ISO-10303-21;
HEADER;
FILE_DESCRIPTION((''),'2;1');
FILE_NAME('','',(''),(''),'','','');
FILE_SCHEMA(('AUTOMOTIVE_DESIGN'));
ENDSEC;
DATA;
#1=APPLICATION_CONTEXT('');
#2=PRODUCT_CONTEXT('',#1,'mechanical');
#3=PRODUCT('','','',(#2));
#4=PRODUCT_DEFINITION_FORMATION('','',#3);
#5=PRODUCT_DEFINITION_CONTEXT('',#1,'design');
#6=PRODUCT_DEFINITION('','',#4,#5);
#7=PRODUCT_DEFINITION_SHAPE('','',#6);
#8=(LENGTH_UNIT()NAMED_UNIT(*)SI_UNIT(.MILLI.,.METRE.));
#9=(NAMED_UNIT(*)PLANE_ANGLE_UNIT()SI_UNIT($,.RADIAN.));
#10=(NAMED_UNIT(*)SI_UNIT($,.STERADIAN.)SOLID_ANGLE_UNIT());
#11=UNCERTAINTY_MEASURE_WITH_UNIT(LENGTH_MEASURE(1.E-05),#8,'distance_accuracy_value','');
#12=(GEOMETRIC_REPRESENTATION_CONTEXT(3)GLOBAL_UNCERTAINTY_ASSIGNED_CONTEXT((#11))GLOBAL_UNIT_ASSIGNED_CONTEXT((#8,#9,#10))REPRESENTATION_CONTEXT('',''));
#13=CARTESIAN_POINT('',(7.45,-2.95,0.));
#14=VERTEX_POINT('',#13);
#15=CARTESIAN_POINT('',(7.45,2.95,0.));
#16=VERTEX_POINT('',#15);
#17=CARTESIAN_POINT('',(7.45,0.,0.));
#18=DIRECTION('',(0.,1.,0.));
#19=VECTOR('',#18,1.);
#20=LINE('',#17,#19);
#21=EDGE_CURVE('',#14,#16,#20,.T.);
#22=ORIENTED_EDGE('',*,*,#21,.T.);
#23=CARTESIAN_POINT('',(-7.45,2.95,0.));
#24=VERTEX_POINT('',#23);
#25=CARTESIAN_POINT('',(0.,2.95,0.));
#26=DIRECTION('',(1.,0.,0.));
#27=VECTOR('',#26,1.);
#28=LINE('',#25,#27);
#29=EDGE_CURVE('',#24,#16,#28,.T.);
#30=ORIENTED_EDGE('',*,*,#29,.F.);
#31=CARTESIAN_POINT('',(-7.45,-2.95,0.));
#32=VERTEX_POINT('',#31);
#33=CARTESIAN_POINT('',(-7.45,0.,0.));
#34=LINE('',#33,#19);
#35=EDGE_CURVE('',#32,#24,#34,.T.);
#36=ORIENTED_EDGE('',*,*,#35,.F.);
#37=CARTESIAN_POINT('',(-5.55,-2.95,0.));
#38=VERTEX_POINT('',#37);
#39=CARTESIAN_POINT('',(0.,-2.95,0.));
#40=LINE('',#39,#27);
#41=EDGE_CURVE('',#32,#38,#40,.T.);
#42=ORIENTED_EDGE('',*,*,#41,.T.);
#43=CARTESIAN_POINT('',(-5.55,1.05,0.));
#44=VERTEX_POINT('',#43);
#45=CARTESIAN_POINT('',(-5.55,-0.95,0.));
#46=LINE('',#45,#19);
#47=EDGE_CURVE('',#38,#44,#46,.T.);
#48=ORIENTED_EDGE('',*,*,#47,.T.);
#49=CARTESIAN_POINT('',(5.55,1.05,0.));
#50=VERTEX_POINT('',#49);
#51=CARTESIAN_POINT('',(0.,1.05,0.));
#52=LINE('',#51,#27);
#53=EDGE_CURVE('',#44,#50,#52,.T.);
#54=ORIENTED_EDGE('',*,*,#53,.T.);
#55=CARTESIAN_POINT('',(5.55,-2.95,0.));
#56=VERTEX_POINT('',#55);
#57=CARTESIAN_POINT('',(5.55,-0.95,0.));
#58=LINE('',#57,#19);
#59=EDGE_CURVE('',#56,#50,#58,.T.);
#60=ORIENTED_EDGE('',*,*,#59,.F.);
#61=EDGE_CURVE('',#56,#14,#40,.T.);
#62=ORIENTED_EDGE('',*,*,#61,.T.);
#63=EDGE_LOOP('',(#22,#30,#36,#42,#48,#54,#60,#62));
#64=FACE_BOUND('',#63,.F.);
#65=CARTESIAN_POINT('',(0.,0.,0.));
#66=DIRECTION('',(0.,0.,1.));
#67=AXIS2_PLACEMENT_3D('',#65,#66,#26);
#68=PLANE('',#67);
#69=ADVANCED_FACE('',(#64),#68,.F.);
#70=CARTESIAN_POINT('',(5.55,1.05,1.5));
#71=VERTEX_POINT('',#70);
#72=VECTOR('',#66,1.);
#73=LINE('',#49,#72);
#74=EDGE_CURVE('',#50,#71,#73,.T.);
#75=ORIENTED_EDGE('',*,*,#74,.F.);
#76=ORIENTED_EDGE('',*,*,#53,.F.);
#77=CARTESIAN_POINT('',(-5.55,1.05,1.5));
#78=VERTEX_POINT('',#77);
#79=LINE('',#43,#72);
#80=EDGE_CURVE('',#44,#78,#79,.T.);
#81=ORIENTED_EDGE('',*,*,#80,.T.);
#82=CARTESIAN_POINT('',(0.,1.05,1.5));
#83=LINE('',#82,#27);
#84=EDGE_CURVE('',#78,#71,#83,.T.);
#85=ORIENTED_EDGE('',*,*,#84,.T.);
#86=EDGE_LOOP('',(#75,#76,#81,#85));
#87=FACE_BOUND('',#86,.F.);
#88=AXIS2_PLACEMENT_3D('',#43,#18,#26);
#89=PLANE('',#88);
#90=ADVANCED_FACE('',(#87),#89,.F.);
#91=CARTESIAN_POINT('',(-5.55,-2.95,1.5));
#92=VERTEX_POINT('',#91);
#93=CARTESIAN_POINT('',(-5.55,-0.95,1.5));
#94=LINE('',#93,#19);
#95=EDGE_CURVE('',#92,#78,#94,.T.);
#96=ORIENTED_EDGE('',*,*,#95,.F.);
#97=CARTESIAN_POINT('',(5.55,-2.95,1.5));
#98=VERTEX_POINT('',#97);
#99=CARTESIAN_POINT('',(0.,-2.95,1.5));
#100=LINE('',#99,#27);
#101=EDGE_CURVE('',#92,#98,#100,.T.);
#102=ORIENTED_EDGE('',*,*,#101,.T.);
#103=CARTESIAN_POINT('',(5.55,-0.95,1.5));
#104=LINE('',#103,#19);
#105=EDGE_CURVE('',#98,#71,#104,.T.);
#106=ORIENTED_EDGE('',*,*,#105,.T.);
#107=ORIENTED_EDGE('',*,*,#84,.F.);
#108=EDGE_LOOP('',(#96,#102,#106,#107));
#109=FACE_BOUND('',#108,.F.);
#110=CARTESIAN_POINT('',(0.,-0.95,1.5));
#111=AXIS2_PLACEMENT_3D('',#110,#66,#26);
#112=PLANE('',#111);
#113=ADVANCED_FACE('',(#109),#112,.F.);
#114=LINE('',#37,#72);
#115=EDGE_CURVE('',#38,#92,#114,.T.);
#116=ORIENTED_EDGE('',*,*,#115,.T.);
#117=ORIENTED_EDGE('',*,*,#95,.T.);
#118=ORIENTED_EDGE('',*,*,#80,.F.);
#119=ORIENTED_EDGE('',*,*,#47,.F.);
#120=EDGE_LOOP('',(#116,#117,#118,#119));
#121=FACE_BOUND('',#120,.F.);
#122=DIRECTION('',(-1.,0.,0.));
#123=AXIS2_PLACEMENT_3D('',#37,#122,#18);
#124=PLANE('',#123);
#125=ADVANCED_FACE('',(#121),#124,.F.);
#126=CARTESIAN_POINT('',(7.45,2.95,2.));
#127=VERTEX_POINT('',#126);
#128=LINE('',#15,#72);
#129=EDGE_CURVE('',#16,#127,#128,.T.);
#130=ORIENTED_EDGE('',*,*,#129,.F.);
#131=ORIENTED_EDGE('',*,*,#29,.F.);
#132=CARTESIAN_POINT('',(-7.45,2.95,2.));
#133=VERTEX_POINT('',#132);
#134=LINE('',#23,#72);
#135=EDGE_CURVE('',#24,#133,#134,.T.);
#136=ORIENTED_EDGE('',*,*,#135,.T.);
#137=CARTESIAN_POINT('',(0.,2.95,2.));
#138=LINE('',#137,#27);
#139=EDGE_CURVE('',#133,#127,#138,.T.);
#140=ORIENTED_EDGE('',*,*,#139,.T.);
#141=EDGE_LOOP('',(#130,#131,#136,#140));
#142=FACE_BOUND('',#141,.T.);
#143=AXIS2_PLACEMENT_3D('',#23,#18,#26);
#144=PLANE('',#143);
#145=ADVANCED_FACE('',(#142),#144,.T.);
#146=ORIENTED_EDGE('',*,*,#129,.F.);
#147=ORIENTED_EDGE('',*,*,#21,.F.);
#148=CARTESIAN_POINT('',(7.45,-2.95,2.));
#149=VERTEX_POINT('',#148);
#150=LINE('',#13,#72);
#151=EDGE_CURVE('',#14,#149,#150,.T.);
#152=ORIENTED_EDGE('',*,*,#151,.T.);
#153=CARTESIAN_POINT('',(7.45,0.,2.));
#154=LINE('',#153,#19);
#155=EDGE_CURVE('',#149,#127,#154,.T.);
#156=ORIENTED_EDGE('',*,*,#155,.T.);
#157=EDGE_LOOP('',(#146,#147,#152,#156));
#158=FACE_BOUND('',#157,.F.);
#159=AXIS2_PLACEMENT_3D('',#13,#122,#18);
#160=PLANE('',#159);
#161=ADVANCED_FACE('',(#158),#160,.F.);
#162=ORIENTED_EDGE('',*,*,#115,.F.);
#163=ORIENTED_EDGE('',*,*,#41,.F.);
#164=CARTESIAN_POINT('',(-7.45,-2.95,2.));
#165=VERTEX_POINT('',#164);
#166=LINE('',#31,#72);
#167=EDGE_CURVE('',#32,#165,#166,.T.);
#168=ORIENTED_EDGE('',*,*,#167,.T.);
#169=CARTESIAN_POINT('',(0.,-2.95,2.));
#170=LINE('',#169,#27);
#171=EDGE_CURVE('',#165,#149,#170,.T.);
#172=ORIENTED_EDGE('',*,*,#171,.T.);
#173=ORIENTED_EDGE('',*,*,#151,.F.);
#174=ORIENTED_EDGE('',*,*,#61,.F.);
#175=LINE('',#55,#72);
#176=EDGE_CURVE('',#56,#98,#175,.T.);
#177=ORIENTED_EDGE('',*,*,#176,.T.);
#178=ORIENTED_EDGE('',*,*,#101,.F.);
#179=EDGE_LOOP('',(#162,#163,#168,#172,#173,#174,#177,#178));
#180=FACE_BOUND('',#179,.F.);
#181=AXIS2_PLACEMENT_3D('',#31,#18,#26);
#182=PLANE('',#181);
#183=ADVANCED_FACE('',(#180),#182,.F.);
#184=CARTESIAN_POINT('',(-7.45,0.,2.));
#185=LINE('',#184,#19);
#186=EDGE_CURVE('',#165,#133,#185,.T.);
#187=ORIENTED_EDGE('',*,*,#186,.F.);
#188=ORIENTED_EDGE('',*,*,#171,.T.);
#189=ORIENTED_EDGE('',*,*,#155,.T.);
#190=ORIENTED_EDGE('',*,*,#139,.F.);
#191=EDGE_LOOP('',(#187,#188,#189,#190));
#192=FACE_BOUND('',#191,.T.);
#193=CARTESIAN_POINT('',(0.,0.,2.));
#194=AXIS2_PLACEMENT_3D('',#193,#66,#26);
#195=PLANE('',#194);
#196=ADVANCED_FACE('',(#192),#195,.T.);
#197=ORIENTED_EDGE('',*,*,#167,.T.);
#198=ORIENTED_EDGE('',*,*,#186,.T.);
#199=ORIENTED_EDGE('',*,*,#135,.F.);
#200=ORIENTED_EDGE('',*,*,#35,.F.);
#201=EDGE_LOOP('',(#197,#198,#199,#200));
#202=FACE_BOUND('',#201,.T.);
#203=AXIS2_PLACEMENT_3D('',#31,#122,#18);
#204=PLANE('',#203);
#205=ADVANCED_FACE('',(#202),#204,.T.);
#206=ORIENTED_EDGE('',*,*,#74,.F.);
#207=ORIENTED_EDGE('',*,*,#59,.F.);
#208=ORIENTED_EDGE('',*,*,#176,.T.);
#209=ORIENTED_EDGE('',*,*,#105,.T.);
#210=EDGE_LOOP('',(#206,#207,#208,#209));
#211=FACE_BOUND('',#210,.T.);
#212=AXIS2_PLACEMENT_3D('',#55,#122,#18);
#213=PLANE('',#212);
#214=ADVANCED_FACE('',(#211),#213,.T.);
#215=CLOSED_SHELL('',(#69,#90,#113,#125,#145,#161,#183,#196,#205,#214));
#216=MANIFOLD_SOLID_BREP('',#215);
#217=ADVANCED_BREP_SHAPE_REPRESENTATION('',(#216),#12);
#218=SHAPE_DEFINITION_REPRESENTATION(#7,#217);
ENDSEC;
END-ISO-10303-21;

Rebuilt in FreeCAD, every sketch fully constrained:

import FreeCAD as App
import Part
import Sketcher

doc = App.newDocument("Part")
body = doc.addObject("PartDesign::Body", "Body")

# Sketch on XY plane
sketch1 = doc.addObject("Sketcher::SketchObject", "Sketch")
body.addObject(sketch1)
sketch1.AttachmentSupport = (doc.XY_Plane, [""])
sketch1.MapMode = "FlatFace"
sketch1.addGeometry([
    Part.LineSegment(App.Vector(-5.5, 1.1, 0), App.Vector(-5.5, -3, 0)),
    Part.LineSegment(App.Vector(-5.5, -3, 0), App.Vector(5.5, -3, 0)),
    Part.LineSegment(App.Vector(5.5, -3, 0), App.Vector(5.5, 1.1, 0)),
    Part.LineSegment(App.Vector(5.5, 1.1, 0), App.Vector(-5.5, 1.1, 0)),
], False)
sketch1.addConstraint([
    Sketcher.Constraint("Coincident", 0, 2, 1, 1),
    Sketcher.Constraint("Coincident", 1, 2, 2, 1),
    Sketcher.Constraint("Coincident", 2, 2, 3, 1),
    Sketcher.Constraint("Coincident", 3, 2, 0, 1),
    Sketcher.Constraint("Vertical", 0),
    Sketcher.Constraint("Horizontal", 1),
    Sketcher.Constraint("Vertical", 2),
    Sketcher.Constraint("Horizontal", 3),
    Sketcher.Constraint("DistanceY", 0, 2, 0, 1, 4.0),
    Sketcher.Constraint("DistanceX", 1, 1, 1, 2, 11.1),
    Sketcher.Constraint("DistanceX", 0, 2, -1, 1, 5.55),
    Sketcher.Constraint("DistanceY", 0, 2, -1, 1, 2.95),
])
pad1 = doc.addObject("PartDesign::Pad", "Pad")
body.addObject(pad1)
pad1.Profile = sketch1
pad1.Length = 1.5
body2 = doc.addObject("PartDesign::Body", "Body001")

# Sketch on XY plane
sketch2 = doc.addObject("Sketcher::SketchObject", "Sketch001")
body2.addObject(sketch2)
sketch2.AttachmentSupport = (doc.getObject("XY_Plane001"), [""])
sketch2.MapMode = "FlatFace"
sketch2.addGeometry([
    Part.LineSegment(App.Vector(-7, 3, 0), App.Vector(-7, -3, 0)),
    Part.LineSegment(App.Vector(-7, -3, 0), App.Vector(7, -3, 0)),
    Part.LineSegment(App.Vector(7, -3, 0), App.Vector(7, 3, 0)),
    Part.LineSegment(App.Vector(7, 3, 0), App.Vector(-7, 3, 0)),
], False)
sketch2.addConstraint([
    Sketcher.Constraint("Coincident", 0, 2, 1, 1),
    Sketcher.Constraint("Coincident", 1, 2, 2, 1),
    Sketcher.Constraint("Coincident", 2, 2, 3, 1),
    Sketcher.Constraint("Coincident", 3, 2, 0, 1),
    Sketcher.Constraint("Vertical", 0),
    Sketcher.Constraint("Horizontal", 1),
    Sketcher.Constraint("Vertical", 2),
    Sketcher.Constraint("Horizontal", 3),
    Sketcher.Constraint("Symmetric", 0, 2, 2, 2, -1, 1),
    Sketcher.Constraint("DistanceX", 1, 1, 1, 2, 14.9),
    Sketcher.Constraint("DistanceY", 0, 2, 0, 1, 5.9),
])
pad2 = doc.addObject("PartDesign::Pad", "Pad001")
body2.addObject(pad2)
pad2.Profile = sketch2
pad2.Length = 2
doc.recompute()

boolean = doc.addObject("PartDesign::Boolean", "Boolean")
body2.addObject(boolean)
boolean.Type = "Cut"
boolean.addObjects([body])

doc.recompute()
